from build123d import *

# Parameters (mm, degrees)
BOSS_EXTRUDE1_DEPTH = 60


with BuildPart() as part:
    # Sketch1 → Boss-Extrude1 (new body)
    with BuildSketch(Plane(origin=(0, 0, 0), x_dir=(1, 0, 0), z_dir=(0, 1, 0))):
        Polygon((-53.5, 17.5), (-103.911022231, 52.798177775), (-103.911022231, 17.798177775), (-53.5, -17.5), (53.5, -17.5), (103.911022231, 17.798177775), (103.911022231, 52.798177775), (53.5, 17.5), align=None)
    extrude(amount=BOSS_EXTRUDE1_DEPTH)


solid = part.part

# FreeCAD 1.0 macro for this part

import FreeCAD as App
import Part
import Sketcher
from FreeCAD import Vector
Q = App.Units.Quantity


def add_polygon(sketch, points):
    """Adds a closed chain of lines whose ends are joined by coincident constraints."""
    first, n = sketch.GeometryCount, len(points)
    for a, b in zip(points, points[1:] + points[:1]):
        sketch.addGeometry(Part.LineSegment(App.Vector(*a, 0), App.Vector(*b, 0)), False)
    for i in range(n):
        sketch.addConstraint(Sketcher.Constraint("Coincident", first + i, 2, first + (i + 1) % n, 1))

doc = App.newDocument("Part")
body = doc.addObject("PartDesign::Body", "Body")

# Sketch on XZ plane
sketch1 = body.newObject("Sketcher::SketchObject", "Sketch")
sketch1.AttachmentSupport = (doc.getObject("XZ_Plane"), [""])
sketch1.MapMode = "FlatFace"
add_polygon(sketch1, [(-54, -18), (-104, -53), (-104, -18), (-54, 18), (54, 18), (104, -18), (104, -53), (54, -18)])  # lines 0-7
sketch1.addConstraint([
    Sketcher.Constraint("Vertical", 1),
    Sketcher.Constraint("Horizontal", 3),
    Sketcher.Constraint("Vertical", 5),
    Sketcher.Constraint("Horizontal", 7),
    Sketcher.Constraint("Symmetric", 2, 2, 6, 2, -1, 1),
    Sketcher.Constraint("Symmetric", 1, 2, 4, 2, -2),
    Sketcher.Constraint("Parallel", 0, 2),
    Sketcher.Constraint("Parallel", 4, 6),
    Sketcher.Constraint("Horizontal", 0, 2, 5, 2),
    Sketcher.Constraint("Vertical", 3, 2, 6, 2),
    Sketcher.Constraint("DistanceX", 3, 1, 3, 2, Q("107 mm")),
    Sketcher.Constraint("DistanceY", 1, 1, 1, 2, Q("35 mm")),
    Sketcher.Constraint("Angle", 0, Q("-145 deg")),
    Sketcher.Constraint("Distance", 0, Q("61.540495 mm")),
])
pad1 = body.newObject("PartDesign::Pad", "Pad")
pad1.Profile = sketch1
pad1.Length = 60
pad1.Reversed = True

doc.recompute()
